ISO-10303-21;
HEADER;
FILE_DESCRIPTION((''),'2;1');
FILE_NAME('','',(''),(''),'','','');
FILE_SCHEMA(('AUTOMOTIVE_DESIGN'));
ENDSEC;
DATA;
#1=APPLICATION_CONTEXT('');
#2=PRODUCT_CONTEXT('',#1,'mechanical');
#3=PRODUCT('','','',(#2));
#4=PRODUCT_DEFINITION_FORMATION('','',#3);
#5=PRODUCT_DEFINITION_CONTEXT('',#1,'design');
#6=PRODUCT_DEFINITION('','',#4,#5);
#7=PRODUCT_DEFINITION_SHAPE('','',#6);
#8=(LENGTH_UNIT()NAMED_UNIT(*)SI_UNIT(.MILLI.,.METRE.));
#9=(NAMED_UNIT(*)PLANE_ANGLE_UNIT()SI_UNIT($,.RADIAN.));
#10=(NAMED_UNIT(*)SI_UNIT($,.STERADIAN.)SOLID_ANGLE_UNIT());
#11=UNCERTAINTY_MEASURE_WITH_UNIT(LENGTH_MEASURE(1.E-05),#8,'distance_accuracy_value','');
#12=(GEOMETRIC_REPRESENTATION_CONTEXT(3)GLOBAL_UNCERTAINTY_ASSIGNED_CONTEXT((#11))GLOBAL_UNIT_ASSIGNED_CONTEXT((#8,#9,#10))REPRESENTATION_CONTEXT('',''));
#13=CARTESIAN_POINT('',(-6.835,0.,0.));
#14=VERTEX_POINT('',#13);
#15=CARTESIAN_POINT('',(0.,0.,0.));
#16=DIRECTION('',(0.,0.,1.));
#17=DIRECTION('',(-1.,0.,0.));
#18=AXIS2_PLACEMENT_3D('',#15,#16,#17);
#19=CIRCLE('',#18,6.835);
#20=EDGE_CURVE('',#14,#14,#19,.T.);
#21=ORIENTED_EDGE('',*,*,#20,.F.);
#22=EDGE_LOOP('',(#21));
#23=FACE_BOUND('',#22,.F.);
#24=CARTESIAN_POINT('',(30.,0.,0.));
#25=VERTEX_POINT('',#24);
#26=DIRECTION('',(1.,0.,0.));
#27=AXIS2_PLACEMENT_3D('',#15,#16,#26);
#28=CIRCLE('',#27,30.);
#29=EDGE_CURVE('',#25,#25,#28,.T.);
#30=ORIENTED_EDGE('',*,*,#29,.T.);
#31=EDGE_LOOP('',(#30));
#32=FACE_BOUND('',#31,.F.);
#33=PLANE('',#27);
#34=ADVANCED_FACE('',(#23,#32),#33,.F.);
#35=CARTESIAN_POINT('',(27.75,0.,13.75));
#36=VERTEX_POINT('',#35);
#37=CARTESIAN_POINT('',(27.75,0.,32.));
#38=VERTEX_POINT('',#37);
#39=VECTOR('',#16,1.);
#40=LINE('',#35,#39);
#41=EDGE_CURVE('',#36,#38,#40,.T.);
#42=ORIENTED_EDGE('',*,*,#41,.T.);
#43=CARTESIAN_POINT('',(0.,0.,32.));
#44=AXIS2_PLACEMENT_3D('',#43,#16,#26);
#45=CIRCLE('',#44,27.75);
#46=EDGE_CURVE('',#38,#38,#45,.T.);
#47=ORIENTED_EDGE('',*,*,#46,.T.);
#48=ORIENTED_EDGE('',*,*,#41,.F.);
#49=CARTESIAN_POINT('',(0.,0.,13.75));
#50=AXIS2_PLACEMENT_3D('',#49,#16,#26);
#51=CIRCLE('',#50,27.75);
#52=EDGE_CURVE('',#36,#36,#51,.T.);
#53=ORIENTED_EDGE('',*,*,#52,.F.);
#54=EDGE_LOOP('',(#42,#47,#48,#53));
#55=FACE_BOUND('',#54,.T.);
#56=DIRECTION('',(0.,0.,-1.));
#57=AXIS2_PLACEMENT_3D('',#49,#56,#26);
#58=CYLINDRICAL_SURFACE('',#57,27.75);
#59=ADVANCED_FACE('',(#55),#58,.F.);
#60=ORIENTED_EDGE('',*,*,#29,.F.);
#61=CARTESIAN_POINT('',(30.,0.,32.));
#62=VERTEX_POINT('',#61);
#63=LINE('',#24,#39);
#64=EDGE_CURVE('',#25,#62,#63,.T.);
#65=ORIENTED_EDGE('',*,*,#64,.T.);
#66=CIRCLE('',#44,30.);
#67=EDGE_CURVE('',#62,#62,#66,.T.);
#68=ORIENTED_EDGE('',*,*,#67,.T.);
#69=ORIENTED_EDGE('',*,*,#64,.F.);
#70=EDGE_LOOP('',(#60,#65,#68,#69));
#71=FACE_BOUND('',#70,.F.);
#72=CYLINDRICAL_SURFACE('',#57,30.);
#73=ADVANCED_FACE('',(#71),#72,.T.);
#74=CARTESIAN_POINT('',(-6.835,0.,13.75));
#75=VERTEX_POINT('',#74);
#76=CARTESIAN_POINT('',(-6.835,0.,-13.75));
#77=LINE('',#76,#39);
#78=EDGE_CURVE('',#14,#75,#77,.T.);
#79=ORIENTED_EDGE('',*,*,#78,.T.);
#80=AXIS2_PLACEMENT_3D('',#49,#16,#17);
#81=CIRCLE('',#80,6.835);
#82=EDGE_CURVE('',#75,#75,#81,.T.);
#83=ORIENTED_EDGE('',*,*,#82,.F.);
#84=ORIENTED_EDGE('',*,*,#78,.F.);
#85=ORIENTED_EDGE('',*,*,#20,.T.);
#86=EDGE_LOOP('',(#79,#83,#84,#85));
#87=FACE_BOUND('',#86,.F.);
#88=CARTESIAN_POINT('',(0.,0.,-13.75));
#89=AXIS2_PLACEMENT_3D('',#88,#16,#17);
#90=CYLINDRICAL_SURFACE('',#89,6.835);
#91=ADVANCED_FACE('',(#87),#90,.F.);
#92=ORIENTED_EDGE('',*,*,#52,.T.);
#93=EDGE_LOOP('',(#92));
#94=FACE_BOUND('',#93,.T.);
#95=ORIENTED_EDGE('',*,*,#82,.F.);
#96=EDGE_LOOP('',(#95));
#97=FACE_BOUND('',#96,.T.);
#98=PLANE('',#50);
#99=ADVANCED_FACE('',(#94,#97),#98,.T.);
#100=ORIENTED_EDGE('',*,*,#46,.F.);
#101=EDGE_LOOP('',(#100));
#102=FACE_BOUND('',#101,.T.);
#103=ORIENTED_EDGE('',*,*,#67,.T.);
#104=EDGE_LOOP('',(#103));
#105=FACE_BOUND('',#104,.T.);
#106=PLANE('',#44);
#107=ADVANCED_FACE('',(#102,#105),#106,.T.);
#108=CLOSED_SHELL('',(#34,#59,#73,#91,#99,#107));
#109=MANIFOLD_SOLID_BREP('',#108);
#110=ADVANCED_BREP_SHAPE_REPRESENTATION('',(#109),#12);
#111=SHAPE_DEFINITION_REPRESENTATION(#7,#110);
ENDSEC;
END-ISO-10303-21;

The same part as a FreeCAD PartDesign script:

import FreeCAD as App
import Part
import Sketcher

doc = App.newDocument("Part")
body = doc.addObject("PartDesign::Body", "Body")

# Sketch on XY plane
sketch1 = doc.addObject("Sketcher::SketchObject", "Sketch")
body.addObject(sketch1)
sketch1.AttachmentSupport = (doc.XY_Plane, [""])
sketch1.MapMode = "FlatFace"
sketch1.addGeometry(Part.Circle(App.Vector(0, 0, 0), App.Vector(0, 0, 1), 30), False)
sketch1.addConstraint([
    Sketcher.Constraint("Coincident", 0, 3, -1, 1),
    Sketcher.Constraint("Diameter", 0, 60.0),
])
pad1 = doc.addObject("PartDesign::Pad", "Pad")
body.addObject(pad1)
pad1.Profile = sketch1
pad1.Length = 13.75

# Sketch on XY plane
sketch2 = doc.addObject("Sketcher::SketchObject", "Sketch001")
body.addObject(sketch2)
sketch2.AttachmentSupport = (doc.XY_Plane, [""])
sketch2.MapMode = "FlatFace"
sketch2.AttachmentOffset = App.Placement(App.Vector(0, 0, 13.75), App.Rotation())
sketch2.addGeometry([
    Part.Circle(App.Vector(0, 0, 0), App.Vector(0, 0, 1), 30),
    Part.Circle(App.Vector(0, 0, 0), App.Vector(0, 0, 1), 28),
], False)
sketch2.addConstraint([
    Sketcher.Constraint("Coincident", 0, 3, -1, 1),
    Sketcher.Constraint("Coincident", 1, 3, -1, 1),
    Sketcher.Constraint("Diameter", 0, 60.0),
    Sketcher.Constraint("Diameter", 1, 55.5),
])
pad2 = doc.addObject("PartDesign::Pad", "Pad001")
body.addObject(pad2)
pad2.Profile = sketch2
pad2.Length = 18.25

# Sketch on XY plane
sketch3 = doc.addObject("Sketcher::SketchObject", "Sketch002")
body.addObject(sketch3)
sketch3.AttachmentSupport = (doc.XY_Plane, [""])
sketch3.MapMode = "FlatFace"
sketch3.addGeometry(Part.Circle(App.Vector(0, 0, 0), App.Vector(0, 0, 1), 7), False)
sketch3.addConstraint([
    Sketcher.Constraint("Coincident", 0, 3, -1, 1),
    Sketcher.Constraint("Diameter", 0, 13.67),
])
doc.recompute()
hole = doc.addObject("PartDesign::Hole", "Hole")
body.addObject(hole)
hole.Profile = sketch3
hole.ThreadType = "None"
hole.Diameter = 13.67
hole.DepthType = "Dimension"
hole.Depth = 13.75
hole.DrillPoint = "Flat"
hole.Reversed = True

doc.recompute()
